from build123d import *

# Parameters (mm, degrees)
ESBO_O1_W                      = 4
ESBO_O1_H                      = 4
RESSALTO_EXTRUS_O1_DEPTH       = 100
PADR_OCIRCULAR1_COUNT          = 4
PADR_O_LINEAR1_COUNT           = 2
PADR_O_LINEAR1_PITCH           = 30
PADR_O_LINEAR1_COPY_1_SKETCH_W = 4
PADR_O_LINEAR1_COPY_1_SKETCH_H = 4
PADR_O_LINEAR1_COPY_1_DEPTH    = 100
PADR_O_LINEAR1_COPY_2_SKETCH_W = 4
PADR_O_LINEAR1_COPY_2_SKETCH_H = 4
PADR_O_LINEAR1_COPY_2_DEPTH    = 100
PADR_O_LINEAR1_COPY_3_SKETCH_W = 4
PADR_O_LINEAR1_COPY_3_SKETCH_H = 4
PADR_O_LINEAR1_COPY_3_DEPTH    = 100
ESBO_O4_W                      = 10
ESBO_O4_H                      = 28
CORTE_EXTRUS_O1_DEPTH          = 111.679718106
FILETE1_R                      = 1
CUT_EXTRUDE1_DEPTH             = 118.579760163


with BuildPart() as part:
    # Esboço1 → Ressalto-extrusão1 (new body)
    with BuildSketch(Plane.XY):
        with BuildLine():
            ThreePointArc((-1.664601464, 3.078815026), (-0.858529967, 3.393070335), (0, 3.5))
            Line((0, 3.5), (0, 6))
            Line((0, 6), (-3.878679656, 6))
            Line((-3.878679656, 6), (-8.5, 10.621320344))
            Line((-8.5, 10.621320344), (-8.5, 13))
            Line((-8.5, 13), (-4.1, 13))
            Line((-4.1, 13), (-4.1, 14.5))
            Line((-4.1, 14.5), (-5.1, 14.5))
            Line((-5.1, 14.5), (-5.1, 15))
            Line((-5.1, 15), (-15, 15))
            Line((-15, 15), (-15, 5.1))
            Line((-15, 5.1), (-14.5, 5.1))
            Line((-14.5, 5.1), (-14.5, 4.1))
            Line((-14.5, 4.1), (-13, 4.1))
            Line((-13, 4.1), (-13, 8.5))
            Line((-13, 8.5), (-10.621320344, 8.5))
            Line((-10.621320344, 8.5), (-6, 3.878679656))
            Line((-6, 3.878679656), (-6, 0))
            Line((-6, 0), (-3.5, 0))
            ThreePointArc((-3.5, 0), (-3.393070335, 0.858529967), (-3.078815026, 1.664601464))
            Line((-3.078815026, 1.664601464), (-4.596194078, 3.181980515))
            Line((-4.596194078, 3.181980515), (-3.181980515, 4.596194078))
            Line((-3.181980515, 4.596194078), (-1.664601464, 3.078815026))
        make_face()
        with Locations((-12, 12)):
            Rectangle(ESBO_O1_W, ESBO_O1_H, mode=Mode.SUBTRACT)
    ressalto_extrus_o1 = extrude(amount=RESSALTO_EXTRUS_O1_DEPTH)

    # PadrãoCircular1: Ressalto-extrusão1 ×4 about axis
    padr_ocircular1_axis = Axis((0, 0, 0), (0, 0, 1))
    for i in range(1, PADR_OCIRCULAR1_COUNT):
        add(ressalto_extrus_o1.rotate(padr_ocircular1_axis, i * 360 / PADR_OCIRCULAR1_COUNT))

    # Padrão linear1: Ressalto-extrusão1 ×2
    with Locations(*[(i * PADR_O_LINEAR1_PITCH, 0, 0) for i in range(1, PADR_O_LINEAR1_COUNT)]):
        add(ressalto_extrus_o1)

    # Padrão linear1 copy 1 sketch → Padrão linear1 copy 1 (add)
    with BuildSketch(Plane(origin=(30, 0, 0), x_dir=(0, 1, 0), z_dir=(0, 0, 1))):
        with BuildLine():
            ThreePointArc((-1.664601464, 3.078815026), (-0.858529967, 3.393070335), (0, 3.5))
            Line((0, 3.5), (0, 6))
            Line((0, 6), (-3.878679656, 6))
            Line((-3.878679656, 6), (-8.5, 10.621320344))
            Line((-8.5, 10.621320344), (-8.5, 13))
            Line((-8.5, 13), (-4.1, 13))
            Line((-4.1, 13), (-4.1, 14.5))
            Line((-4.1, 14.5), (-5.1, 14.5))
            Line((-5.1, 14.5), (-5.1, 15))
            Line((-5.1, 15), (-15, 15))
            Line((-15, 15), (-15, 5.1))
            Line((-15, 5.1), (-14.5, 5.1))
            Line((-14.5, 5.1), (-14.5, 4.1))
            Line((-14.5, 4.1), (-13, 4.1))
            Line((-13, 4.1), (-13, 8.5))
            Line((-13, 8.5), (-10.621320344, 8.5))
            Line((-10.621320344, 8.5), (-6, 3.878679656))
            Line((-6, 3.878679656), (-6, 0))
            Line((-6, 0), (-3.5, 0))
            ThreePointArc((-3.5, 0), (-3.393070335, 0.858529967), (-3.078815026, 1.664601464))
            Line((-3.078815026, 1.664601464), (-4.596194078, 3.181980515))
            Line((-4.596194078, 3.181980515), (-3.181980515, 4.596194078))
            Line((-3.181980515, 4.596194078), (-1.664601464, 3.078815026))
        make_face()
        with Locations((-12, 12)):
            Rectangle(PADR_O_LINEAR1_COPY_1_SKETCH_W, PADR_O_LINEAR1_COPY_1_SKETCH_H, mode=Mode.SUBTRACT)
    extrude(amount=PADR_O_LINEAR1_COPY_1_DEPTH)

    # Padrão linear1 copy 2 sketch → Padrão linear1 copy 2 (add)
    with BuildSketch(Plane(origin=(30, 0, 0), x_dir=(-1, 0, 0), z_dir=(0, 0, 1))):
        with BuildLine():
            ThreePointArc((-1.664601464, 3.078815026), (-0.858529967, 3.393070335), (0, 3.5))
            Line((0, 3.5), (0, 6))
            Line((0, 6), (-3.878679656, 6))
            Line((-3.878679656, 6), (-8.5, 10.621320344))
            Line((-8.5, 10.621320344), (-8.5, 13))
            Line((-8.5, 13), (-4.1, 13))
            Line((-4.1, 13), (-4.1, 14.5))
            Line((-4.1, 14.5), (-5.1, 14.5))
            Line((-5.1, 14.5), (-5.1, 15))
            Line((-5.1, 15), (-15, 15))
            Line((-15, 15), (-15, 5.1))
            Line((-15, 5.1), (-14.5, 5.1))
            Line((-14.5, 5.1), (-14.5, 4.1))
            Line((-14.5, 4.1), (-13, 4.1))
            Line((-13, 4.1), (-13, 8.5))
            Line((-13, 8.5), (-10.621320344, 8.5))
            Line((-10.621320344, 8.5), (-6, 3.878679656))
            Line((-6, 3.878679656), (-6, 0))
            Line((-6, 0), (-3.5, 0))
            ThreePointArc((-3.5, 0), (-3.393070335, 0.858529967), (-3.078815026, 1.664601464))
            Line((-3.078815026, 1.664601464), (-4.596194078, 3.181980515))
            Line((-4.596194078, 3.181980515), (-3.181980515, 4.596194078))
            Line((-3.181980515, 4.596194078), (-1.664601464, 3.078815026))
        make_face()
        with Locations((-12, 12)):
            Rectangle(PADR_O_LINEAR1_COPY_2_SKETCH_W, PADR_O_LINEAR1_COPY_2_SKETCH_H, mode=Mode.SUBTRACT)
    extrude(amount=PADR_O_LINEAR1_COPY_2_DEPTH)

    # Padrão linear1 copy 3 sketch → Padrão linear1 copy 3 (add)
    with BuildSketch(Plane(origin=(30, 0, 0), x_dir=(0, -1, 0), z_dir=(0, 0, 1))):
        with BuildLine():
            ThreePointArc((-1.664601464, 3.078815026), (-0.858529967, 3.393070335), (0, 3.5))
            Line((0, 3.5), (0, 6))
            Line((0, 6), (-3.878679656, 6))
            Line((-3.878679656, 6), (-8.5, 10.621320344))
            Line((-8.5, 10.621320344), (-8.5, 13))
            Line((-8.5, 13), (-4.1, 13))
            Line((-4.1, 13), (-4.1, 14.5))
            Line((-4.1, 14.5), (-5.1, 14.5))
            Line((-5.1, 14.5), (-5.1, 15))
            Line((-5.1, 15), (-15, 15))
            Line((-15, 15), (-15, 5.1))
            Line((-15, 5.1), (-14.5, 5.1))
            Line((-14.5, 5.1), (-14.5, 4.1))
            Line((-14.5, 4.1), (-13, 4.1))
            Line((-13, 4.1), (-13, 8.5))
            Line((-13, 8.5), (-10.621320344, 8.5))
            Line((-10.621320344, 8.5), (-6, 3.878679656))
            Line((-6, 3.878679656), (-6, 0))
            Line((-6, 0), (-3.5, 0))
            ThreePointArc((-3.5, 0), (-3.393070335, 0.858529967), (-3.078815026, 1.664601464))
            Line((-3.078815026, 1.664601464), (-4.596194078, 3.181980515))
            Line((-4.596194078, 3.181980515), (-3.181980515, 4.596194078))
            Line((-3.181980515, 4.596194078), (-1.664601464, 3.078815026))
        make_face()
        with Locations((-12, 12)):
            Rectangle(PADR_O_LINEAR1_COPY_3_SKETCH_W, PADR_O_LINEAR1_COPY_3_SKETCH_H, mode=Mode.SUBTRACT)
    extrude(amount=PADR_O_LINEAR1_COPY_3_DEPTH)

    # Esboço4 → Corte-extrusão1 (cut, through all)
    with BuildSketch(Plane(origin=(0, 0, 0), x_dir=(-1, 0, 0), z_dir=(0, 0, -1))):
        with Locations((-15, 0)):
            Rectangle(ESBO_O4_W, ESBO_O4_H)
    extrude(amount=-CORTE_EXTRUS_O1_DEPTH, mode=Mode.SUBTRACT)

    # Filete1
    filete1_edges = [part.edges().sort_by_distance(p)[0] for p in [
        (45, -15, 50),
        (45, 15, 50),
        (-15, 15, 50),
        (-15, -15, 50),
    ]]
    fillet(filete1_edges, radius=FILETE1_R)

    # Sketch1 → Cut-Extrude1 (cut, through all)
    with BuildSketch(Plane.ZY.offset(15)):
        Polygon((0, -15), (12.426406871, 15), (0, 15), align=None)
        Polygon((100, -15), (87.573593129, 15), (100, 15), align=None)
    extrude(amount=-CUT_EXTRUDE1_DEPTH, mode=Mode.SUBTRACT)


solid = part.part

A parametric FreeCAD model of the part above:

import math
import FreeCAD as App
import Part
import Sketcher
from FreeCAD import Vector
Q = App.Units.Quantity


def edges_at(feature, points):
    """Names of the edges that pass closest to the given points."""
    edges = feature.Shape.Edges
    near = lambda p: min(range(len(edges)), key=lambda i: edges[i].distToShape(Part.Vertex(*p))[0])
    return sorted({f"Edge{near(p) + 1}" for p in points})

doc = App.newDocument("Part")
body = doc.addObject("PartDesign::Body", "Body")

sketch1 = doc.addObject("Sketcher::SketchObject", "Sketch")
body.addObject(sketch1)
sketch1.AttachmentSupport = (doc.XY_Plane, [""])
sketch1.MapMode = "FlatFace"
sketch1.addGeometry(Part.ArcOfCircle(Part.Circle(Vector(0, 0, 0), Vector(0, 0, 1), 3.5), math.radians(90), math.radians(118)), False)
sketch1.addGeometry(Part.LineSegment(Vector(0, 3.5, 0), Vector(0, 6, 0)), False)
sketch1.addGeometry(Part.LineSegment(Vector(0, 6, 0), Vector(-3.9, 6, 0)), False)
sketch1.addGeometry(Part.LineSegment(Vector(-3.9, 6, 0), Vector(-8.5, 10.6, 0)), False)
sketch1.addGeometry(Part.LineSegment(Vector(-8.5, 10.6, 0), Vector(-8.5, 13, 0)), False)
sketch1.addGeometry(Part.LineSegment(Vector(-8.5, 13, 0), Vector(-4.1, 13, 0)), False)
sketch1.addGeometry(Part.LineSegment(Vector(-4.1, 13, 0), Vector(-4.1, 14.5, 0)), False)
sketch1.addGeometry(Part.LineSegment(Vector(-4.1, 14.5, 0), Vector(-5.1, 14.5, 0)), False)
sketch1.addGeometry(Part.LineSegment(Vector(-5.1, 14.5, 0), Vector(-5.1, 15, 0)), False)
sketch1.addGeometry(Part.LineSegment(Vector(-5.1, 15, 0), Vector(-15, 15, 0)), False)
sketch1.addGeometry(Part.LineSegment(Vector(-15, 15, 0), Vector(-15, 5.1, 0)), False)
sketch1.addGeometry(Part.LineSegment(Vector(-15, 5.1, 0), Vector(-14.5, 5.1, 0)), False)
sketch1.addGeometry(Part.LineSegment(Vector(-14.5, 5.1, 0), Vector(-14.5, 4.1, 0)), False)
sketch1.addGeometry(Part.LineSegment(Vector(-14.5, 4.1, 0), Vector(-13, 4.1, 0)), False)
sketch1.addGeometry(Part.LineSegment(Vector(-13, 4.1, 0), Vector(-13, 8.5, 0)), False)
sketch1.addGeometry(Part.LineSegment(Vector(-13, 8.5, 0), Vector(-10.6, 8.5, 0)), False)
sketch1.addGeometry(Part.LineSegment(Vector(-10.6, 8.5, 0), Vector(-6, 3.9, 0)), False)
sketch1.addGeometry(Part.LineSegment(Vector(-6, 3.9, 0), Vector(-6, 0, 0)), False)
sketch1.addGeometry(Part.LineSegment(Vector(-6, 0, 0), Vector(-3.5, 0, 0)), False)
sketch1.addGeometry(Part.ArcOfCircle(Part.Circle(Vector(0, 0, 0), Vector(0, 0, 1), 3.5), math.radians(152), math.radians(180)), False)
sketch1.addGeometry(Part.LineSegment(Vector(-3.1, 1.7, 0), Vector(-4.6, 3.2, 0)), False)
sketch1.addGeometry(Part.LineSegment(Vector(-4.6, 3.2, 0), Vector(-3.2, 4.6, 0)), False)
sketch1.addGeometry(Part.LineSegment(Vector(-3.2, 4.6, 0), Vector(-1.7, 3.1, 0)), False)
sketch1.addGeometry(Part.LineSegment(Vector(-10, 10, 0), Vector(-14, 10, 0)), False)
sketch1.addGeometry(Part.LineSegment(Vector(-14, 10, 0), Vector(-14, 14, 0)), False)
sketch1.addGeometry(Part.LineSegment(Vector(-14, 14, 0), Vector(-10, 14, 0)), False)
sketch1.addGeometry(Part.LineSegment(Vector(-10, 14, 0), Vector(-10, 10, 0)), False)
sketch1.addConstraint(Sketcher.Constraint("Coincident", 0, 1, 1, 1))
sketch1.addConstraint(Sketcher.Constraint("Coincident", 1, 2, 2, 1))
sketch1.addConstraint(Sketcher.Constraint("Coincident", 2, 2, 3, 1))
sketch1.addConstraint(Sketcher.Constraint("Coincident", 3, 2, 4, 1))
sketch1.addConstraint(Sketcher.Constraint("Coincident", 4, 2, 5, 1))
sketch1.addConstraint(Sketcher.Constraint("Coincident", 5, 2, 6, 1))
sketch1.addConstraint(Sketcher.Constraint("Coincident", 6, 2, 7, 1))
sketch1.addConstraint(Sketcher.Constraint("Coincident", 7, 2, 8, 1))
sketch1.addConstraint(Sketcher.Constraint("Coincident", 8, 2, 9, 1))
sketch1.addConstraint(Sketcher.Constraint("Coincident", 9, 2, 10, 1))
sketch1.addConstraint(Sketcher.Constraint("Coincident", 10, 2, 11, 1))
sketch1.addConstraint(Sketcher.Constraint("Coincident", 11, 2, 12, 1))
sketch1.addConstraint(Sketcher.Constraint("Coincident", 12, 2, 13, 1))
sketch1.addConstraint(Sketcher.Constraint("Coincident", 13, 2, 14, 1))
sketch1.addConstraint(Sketcher.Constraint("Coincident", 14, 2, 15, 1))
sketch1.addConstraint(Sketcher.Constraint("Coincident", 15, 2, 16, 1))
sketch1.addConstraint(Sketcher.Constraint("Coincident", 16, 2, 17, 1))
sketch1.addConstraint(Sketcher.Constraint("Coincident", 17, 2, 18, 1))
sketch1.addConstraint(Sketcher.Constraint("Coincident", 18, 2, 19, 2))
sketch1.addConstraint(Sketcher.Constraint("Coincident", 19, 1, 20, 1))
sketch1.addConstraint(Sketcher.Constraint("Coincident", 20, 2, 21, 1))
sketch1.addConstraint(Sketcher.Constraint("Coincident", 21, 2, 22, 1))
sketch1.addConstraint(Sketcher.Constraint("Coincident", 22, 2, 0, 2))
sketch1.addConstraint(Sketcher.Constraint("Coincident", 23, 2, 24, 1))
sketch1.addConstraint(Sketcher.Constraint("Coincident", 24, 2, 25, 1))
sketch1.addConstraint(Sketcher.Constraint("Coincident", 25, 2, 26, 1))
sketch1.addConstraint(Sketcher.Constraint("Coincident", 26, 2, 23, 1))
sketch1.addConstraint(Sketcher.Constraint("Vertical", 1))
sketch1.addConstraint(Sketcher.Constraint("Horizontal", 2))
sketch1.addConstraint(Sketcher.Constraint("Vertical", 4))
sketch1.addConstraint(Sketcher.Constraint("Horizontal", 5))
sketch1.addConstraint(Sketcher.Constraint("Vertical", 6))
sketch1.addConstraint(Sketcher.Constraint("Horizontal", 7))
sketch1.addConstraint(Sketcher.Constraint("Vertical", 8))
sketch1.addConstraint(Sketcher.Constraint("Horizontal", 9))
sketch1.addConstraint(Sketcher.Constraint("Vertical", 10))
sketch1.addConstraint(Sketcher.Constraint("Horizontal", 11))
sketch1.addConstraint(Sketcher.Constraint("Vertical", 12))
sketch1.addConstraint(Sketcher.Constraint("Horizontal", 13))
sketch1.addConstraint(Sketcher.Constraint("Vertical", 14))
sketch1.addConstraint(Sketcher.Constraint("Horizontal", 15))
sketch1.addConstraint(Sketcher.Constraint("Vertical", 17))
sketch1.addConstraint(Sketcher.Constraint("Horizontal", 18))
sketch1.addConstraint(Sketcher.Constraint("Horizontal", 23))
sketch1.addConstraint(Sketcher.Constraint("Vertical", 24))
sketch1.addConstraint(Sketcher.Constraint("Horizontal", 25))
sketch1.addConstraint(Sketcher.Constraint("Vertical", 26))
sketch1.addConstraint(Sketcher.Constraint("Coincident", 0, 3, -1, 1))
sketch1.addConstraint(Sketcher.Constraint("Coincident", 19, 3, -1, 1))
sketch1.addConstraint(Sketcher.Constraint("Equal", 0, 19))
sketch1.addConstraint(Sketcher.Constraint("PointOnObject", 0, 1, -2))
sketch1.addConstraint(Sketcher.Constraint("PointOnObject", 17, 2, -1))
sketch1.addConstraint(Sketcher.Constraint("Parallel", 3, 16))
sketch1.addConstraint(Sketcher.Constraint("Parallel", 16, 20))
sketch1.addConstraint(Sketcher.Constraint("Perpendicular", 20, 21))
sketch1.addConstraint(Sketcher.Constraint("Perpendicular", 21, 22))
sketch1.addConstraint(Sketcher.Constraint("Equal", 18, 1))
sketch1.addConstraint(Sketcher.Constraint("Equal", 15, 4))
sketch1.addConstraint(Sketcher.Constraint("Equal", 13, 6))
sketch1.addConstraint(Sketcher.Constraint("Equal", 11, 8))
sketch1.addConstraint(Sketcher.Constraint("Equal", 9, 10))
sketch1.addConstraint(Sketcher.Constraint("Equal", 7, 12))
sketch1.addConstraint(Sketcher.Constraint("Equal", 5, 14))
sketch1.addConstraint(Sketcher.Constraint("Equal", 2, 17))
sketch1.addConstraint(Sketcher.Constraint("Equal", 25, 24))
sketch1.addConstraint(Sketcher.Constraint("Equal", 20, 22))
sketch1.addConstraint(Sketcher.Constraint("Radius", 0, Q("3.5 mm")))
sketch1.addConstraint(Sketcher.Constraint("DistanceX", 7, 2, 7, 1, Q("1 mm")))
sketch1.addConstraint(Sketcher.Constraint("DistanceX", 23, 2, 23, 1, Q("4 mm")))
sketch1.addConstraint(Sketcher.Constraint("Angle", 3, Q("135 deg")))
sketch1.addConstraint(Sketcher.Constraint("Distance", 21, Q("2 mm")))
sketch1.addConstraint(Sketcher.Constraint("DistanceX", 5, 1, 5, 2, Q("4.4 mm")))
sketch1.addConstraint(Sketcher.Constraint("DistanceX", 9, 2, 9, 1, Q("9.9 mm")))
sketch1.addConstraint(Sketcher.Constraint("DistanceX", 11, 1, 11, 2, Q("0.5 mm")))
sketch1.addConstraint(Sketcher.Constraint("DistanceX", 13, 1, 13, 2, Q("1.5 mm")))
sketch1.addConstraint(Sketcher.Constraint("DistanceX", 18, 1, 18, 2, Q("2.5 mm")))
sketch1.addConstraint(Sketcher.Constraint("DistanceY", -1, 1, 4, 2, Q("13 mm")))
sketch1.addConstraint(Sketcher.Constraint("DistanceX", 23, 2, -1, 1, Q("14 mm")))
sketch1.addConstraint(Sketcher.Constraint("DistanceY", -1, 1, 23, 2, Q("10 mm")))
sketch1.addConstraint(Sketcher.Constraint("Distance", 20, Q("2.145898 mm")))
sketch1.addConstraint(Sketcher.Constraint("DistanceX", 2, 2, 2, 1, Q("3.87868 mm")))
pad1 = doc.addObject("PartDesign::Pad", "Pad")
body.addObject(pad1)
pad1.Profile = sketch1
pad1.Length = 100
doc.recompute()

polarpattern = doc.addObject("PartDesign::PolarPattern", "PolarPattern")
body.addObject(polarpattern)
polarpattern.Originals = [pad1]
polarpattern.Axis = (doc.Z_Axis, [""])
polarpattern.Angle = 360
polarpattern.Occurrences = 4
body.Tip = polarpattern
doc.recompute()

linearpattern = doc.addObject("PartDesign::LinearPattern", "LinearPattern")
body.addObject(linearpattern)
linearpattern.Originals = [pad1]
linearpattern.Direction = (doc.X_Axis, [""])
linearpattern.Mode = "offset"
linearpattern.Offset = 30
linearpattern.Occurrences = 2
body.Tip = linearpattern

sketch2 = doc.addObject("Sketcher::SketchObject", "Sketch001")
body.addObject(sketch2)
sketch2.AttachmentSupport = (doc.XY_Plane, [""])
sketch2.MapMode = "FlatFace"
sketch2.addGeometry(Part.ArcOfCircle(Part.Circle(Vector(30, 0, 0), Vector(0, 0, 1), 3.5), math.radians(180), math.radians(208)), False)
sketch2.addGeometry(Part.LineSegment(Vector(26.5, 0, 0), Vector(24, 0, 0)), False)
sketch2.addGeometry(Part.LineSegment(Vector(24, 0, 0), Vector(24, -3.9, 0)), False)
sketch2.addGeometry(Part.LineSegment(Vector(24, -3.9, 0), Vector(19.4, -8.5, 0)), False)
sketch2.addGeometry(Part.LineSegment(Vector(19.4, -8.5, 0), Vector(17, -8.5, 0)), False)
sketch2.addGeometry(Part.LineSegment(Vector(17, -8.5, 0), Vector(17, -4.1, 0)), False)
sketch2.addGeometry(Part.LineSegment(Vector(17, -4.1, 0), Vector(15.5, -4.1, 0)), False)
sketch2.addGeometry(Part.LineSegment(Vector(15.5, -4.1, 0), Vector(15.5, -5.1, 0)), False)
sketch2.addGeometry(Part.LineSegment(Vector(15.5, -5.1, 0), Vector(15, -5.1, 0)), False)
sketch2.addGeometry(Part.LineSegment(Vector(15, -5.1, 0), Vector(15, -15, 0)), False)
sketch2.addGeometry(Part.LineSegment(Vector(15, -15, 0), Vector(24.9, -15, 0)), False)
sketch2.addGeometry(Part.LineSegment(Vector(24.9, -15, 0), Vector(24.9, -14.5, 0)), False)
sketch2.addGeometry(Part.LineSegment(Vector(24.9, -14.5, 0), Vector(25.9, -14.5, 0)), False)
sketch2.addGeometry(Part.LineSegment(Vector(25.9, -14.5, 0), Vector(25.9, -13, 0)), False)
sketch2.addGeometry(Part.LineSegment(Vector(25.9, -13, 0), Vector(21.5, -13, 0)), False)
sketch2.addGeometry(Part.LineSegment(Vector(21.5, -13, 0), Vector(21.5, -10.6, 0)), False)
sketch2.addGeometry(Part.LineSegment(Vector(21.5, -10.6, 0), Vector(26.1, -6, 0)), False)
sketch2.addGeometry(Part.LineSegment(Vector(26.1, -6, 0), Vector(30, -6, 0)), False)
sketch2.addGeometry(Part.LineSegment(Vector(30, -6, 0), Vector(30, -3.5, 0)), False)
sketch2.addGeometry(Part.ArcOfCircle(Part.Circle(Vector(30, 0, 0), Vector(0, 0, 1), 3.5), math.radians(-118), math.radians(-90)), False)
sketch2.addGeometry(Part.LineSegment(Vector(28.3, -3.1, 0), Vector(26.8, -4.6, 0)), False)
sketch2.addGeometry(Part.LineSegment(Vector(26.8, -4.6, 0), Vector(25.4, -3.2, 0)), False)
sketch2.addGeometry(Part.LineSegment(Vector(25.4, -3.2, 0), Vector(26.9, -1.7, 0)), False)
sketch2.addGeometry(Part.LineSegment(Vector(20, -10, 0), Vector(20, -14, 0)), False)
sketch2.addGeometry(Part.LineSegment(Vector(20, -14, 0), Vector(16, -14, 0)), False)
sketch2.addGeometry(Part.LineSegment(Vector(16, -14, 0), Vector(16, -10, 0)), False)
sketch2.addGeometry(Part.LineSegment(Vector(16, -10, 0), Vector(20, -10, 0)), False)
sketch2.addConstraint(Sketcher.Constraint("Coincident", 0, 1, 1, 1))
sketch2.addConstraint(Sketcher.Constraint("Coincident", 1, 2, 2, 1))
sketch2.addConstraint(Sketcher.Constraint("Coincident", 2, 2, 3, 1))
sketch2.addConstraint(Sketcher.Constraint("Coincident", 3, 2, 4, 1))
sketch2.addConstraint(Sketcher.Constraint("Coincident", 4, 2, 5, 1))
sketch2.addConstraint(Sketcher.Constraint("Coincident", 5, 2, 6, 1))
sketch2.addConstraint(Sketcher.Constraint("Coincident", 6, 2, 7, 1))
sketch2.addConstraint(Sketcher.Constraint("Coincident", 7, 2, 8, 1))
sketch2.addConstraint(Sketcher.Constraint("Coincident", 8, 2, 9, 1))
sketch2.addConstraint(Sketcher.Constraint("Coincident", 9, 2, 10, 1))
sketch2.addConstraint(Sketcher.Constraint("Coincident", 10, 2, 11, 1))
sketch2.addConstraint(Sketcher.Constraint("Coincident", 11, 2, 12, 1))
sketch2.addConstraint(Sketcher.Constraint("Coincident", 12, 2, 13, 1))
sketch2.addConstraint(Sketcher.Constraint("Coincident", 13, 2, 14, 1))
sketch2.addConstraint(Sketcher.Constraint("Coincident", 14, 2, 15, 1))
sketch2.addConstraint(Sketcher.Constraint("Coincident", 15, 2, 16, 1))
sketch2.addConstraint(Sketcher.Constraint("Coincident", 16, 2, 17, 1))
sketch2.addConstraint(Sketcher.Constraint("Coincident", 17, 2, 18, 1))
sketch2.addConstraint(Sketcher.Constraint("Coincident", 18, 2, 19, 2))
sketch2.addConstraint(Sketcher.Constraint("Coincident", 19, 1, 20, 1))
sketch2.addConstraint(Sketcher.Constraint("Coincident", 20, 2, 21, 1))
sketch2.addConstraint(Sketcher.Constraint("Coincident", 21, 2, 22, 1))
sketch2.addConstraint(Sketcher.Constraint("Coincident", 22, 2, 0, 2))
sketch2.addConstraint(Sketcher.Constraint("Coincident", 23, 2, 24, 1))
sketch2.addConstraint(Sketcher.Constraint("Coincident", 24, 2, 25, 1))
sketch2.addConstraint(Sketcher.Constraint("Coincident", 25, 2, 26, 1))
sketch2.addConstraint(Sketcher.Constraint("Coincident", 26, 2, 23, 1))
sketch2.addConstraint(Sketcher.Constraint("Horizontal", 1))
sketch2.addConstraint(Sketcher.Constraint("Vertical", 2))
sketch2.addConstraint(Sketcher.Constraint("Horizontal", 4))
sketch2.addConstraint(Sketcher.Constraint("Vertical", 5))
sketch2.addConstraint(Sketcher.Constraint("Horizontal", 6))
sketch2.addConstraint(Sketcher.Constraint("Vertical", 7))
sketch2.addConstraint(Sketcher.Constraint("Horizontal", 8))
sketch2.addConstraint(Sketcher.Constraint("Vertical", 9))
sketch2.addConstraint(Sketcher.Constraint("Horizontal", 10))
sketch2.addConstraint(Sketcher.Constraint("Vertical", 11))
sketch2.addConstraint(Sketcher.Constraint("Horizontal", 12))
sketch2.addConstraint(Sketcher.Constraint("Vertical", 13))
sketch2.addConstraint(Sketcher.Constraint("Horizontal", 14))
sketch2.addConstraint(Sketcher.Constraint("Vertical", 15))
sketch2.addConstraint(Sketcher.Constraint("Horizontal", 17))
sketch2.addConstraint(Sketcher.Constraint("Vertical", 18))
sketch2.addConstraint(Sketcher.Constraint("Vertical", 23))
sketch2.addConstraint(Sketcher.Constraint("Horizontal", 24))
sketch2.addConstraint(Sketcher.Constraint("Vertical", 25))
sketch2.addConstraint(Sketcher.Constraint("Horizontal", 26))
sketch2.addConstraint(Sketcher.Constraint("Coincident", 19, 3, 0, 3))
sketch2.addConstraint(Sketcher.Constraint("Equal", 0, 19))
sketch2.addConstraint(Sketcher.Constraint("PointOnObject", 0, 3, -1))
sketch2.addConstraint(Sketcher.Constraint("PointOnObject", 0, 1, -1))
sketch2.addConstraint(Sketcher.Constraint("Parallel", 3, 16))
sketch2.addConstraint(Sketcher.Constraint("Parallel", 16, 20))
sketch2.addConstraint(Sketcher.Constraint("Perpendicular", 20, 21))
sketch2.addConstraint(Sketcher.Constraint("Perpendicular", 21, 22))
sketch2.addConstraint(Sketcher.Constraint("Vertical", 19, 3, 17, 2))
sketch2.addConstraint(Sketcher.Constraint("Equal", 17, 2))
sketch2.addConstraint(Sketcher.Constraint("Equal", 14, 5))
sketch2.addConstraint(Sketcher.Constraint("Equal", 12, 7))
sketch2.addConstraint(Sketcher.Constraint("Equal", 10, 9))
sketch2.addConstraint(Sketcher.Constraint("Equal", 8, 11))
sketch2.addConstraint(Sketcher.Constraint("Equal", 6, 13))
sketch2.addConstraint(Sketcher.Constraint("Equal", 4, 15))
sketch2.addConstraint(Sketcher.Constraint("Equal", 1, 18))
sketch2.addConstraint(Sketcher.Constraint("Equal", 26, 23))
sketch2.addConstraint(Sketcher.Constraint("Equal", 20, 22))
sketch2.addConstraint(Sketcher.Constraint("Radius", 0, Q("3.5 mm")))
sketch2.addConstraint(Sketcher.Constraint("DistanceX", 12, 1, 12, 2, Q("1 mm")))
sketch2.addConstraint(Sketcher.Constraint("DistanceX", 24, 2, 24, 1, Q("4 mm")))
sketch2.addConstraint(Sketcher.Constraint("Angle", 3, Q("-135 deg")))
sketch2.addConstraint(Sketcher.Constraint("Distance", 21, Q("2 mm")))
sketch2.addConstraint(Sketcher.Constraint("DistanceX", 1, 2, 1, 1, Q("2.5 mm")))
sketch2.addConstraint(Sketcher.Constraint("DistanceX", 6, 2, 6, 1, Q("1.5 mm")))
sketch2.addConstraint(Sketcher.Constraint("DistanceX", 8, 2, 8, 1, Q("0.5 mm")))
sketch2.addConstraint(Sketcher.Constraint("DistanceX", 10, 1, 10, 2, Q("9.9 mm")))
sketch2.addConstraint(Sketcher.Constraint("DistanceX", 14, 2, 14, 1, Q("4.4 mm")))
sketch2.addConstraint(Sketcher.Constraint("DistanceX", -1, 1, 0, 3, Q("30 mm")))
sketch2.addConstraint(Sketcher.Constraint("DistanceX", -1, 1, 4, 2, Q("17 mm")))
sketch2.addConstraint(Sketcher.Constraint("DistanceX", -1, 1, 23, 2, Q("20 mm")))
sketch2.addConstraint(Sketcher.Constraint("DistanceY", 23, 2, -1, 1, Q("14 mm")))
sketch2.addConstraint(Sketcher.Constraint("Distance", 20, Q("2.145898 mm")))
sketch2.addConstraint(Sketcher.Constraint("DistanceX", 4, 2, 4, 1, Q("2.37868 mm")))
pad2 = doc.addObject("PartDesign::Pad", "Pad001")
body.addObject(pad2)
pad2.Profile = sketch2
pad2.Length = 100

sketch3 = doc.addObject("Sketcher::SketchObject", "Sketch002")
body.addObject(sketch3)
sketch3.AttachmentSupport = (doc.XY_Plane, [""])
sketch3.MapMode = "FlatFace"
sketch3.addGeometry(Part.ArcOfCircle(Part.Circle(Vector(30, 0, 0), Vector(0, 0, 1), 3.5), math.radians(-90), math.radians(-62)), False)
sketch3.addGeometry(Part.LineSegment(Vector(30, -3.5, 0), Vector(30, -6, 0)), False)
sketch3.addGeometry(Part.LineSegment(Vector(30, -6, 0), Vector(33.9, -6, 0)), False)
sketch3.addGeometry(Part.LineSegment(Vector(33.9, -6, 0), Vector(38.5, -10.6, 0)), False)
sketch3.addGeometry(Part.LineSegment(Vector(38.5, -10.6, 0), Vector(38.5, -13, 0)), False)
sketch3.addGeometry(Part.LineSegment(Vector(38.5, -13, 0), Vector(34.1, -13, 0)), False)
sketch3.addGeometry(Part.LineSegment(Vector(34.1, -13, 0), Vector(34.1, -14.5, 0)), False)
sketch3.addGeometry(Part.LineSegment(Vector(34.1, -14.5, 0), Vector(35.1, -14.5, 0)), False)
sketch3.addGeometry(Part.LineSegment(Vector(35.1, -14.5, 0), Vector(35.1, -15, 0)), False)
sketch3.addGeometry(Part.LineSegment(Vector(35.1, -15, 0), Vector(45, -15, 0)), False)
sketch3.addGeometry(Part.LineSegment(Vector(45, -15, 0), Vector(45, -5.1, 0)), False)
sketch3.addGeometry(Part.LineSegment(Vector(45, -5.1, 0), Vector(44.5, -5.1, 0)), False)
sketch3.addGeometry(Part.LineSegment(Vector(44.5, -5.1, 0), Vector(44.5, -4.1, 0)), False)
sketch3.addGeometry(Part.LineSegment(Vector(44.5, -4.1, 0), Vector(43, -4.1, 0)), False)
sketch3.addGeometry(Part.LineSegment(Vector(43, -4.1, 0), Vector(43, -8.5, 0)), False)
sketch3.addGeometry(Part.LineSegment(Vector(43, -8.5, 0), Vector(40.6, -8.5, 0)), False)
sketch3.addGeometry(Part.LineSegment(Vector(40.6, -8.5, 0), Vector(36, -3.9, 0)), False)
sketch3.addGeometry(Part.LineSegment(Vector(36, -3.9, 0), Vector(36, 0, 0)), False)
sketch3.addGeometry(Part.LineSegment(Vector(36, 0, 0), Vector(33.5, 0, 0)), False)
sketch3.addGeometry(Part.ArcOfCircle(Part.Circle(Vector(30, 0, 0), Vector(0, 0, 1), 3.5), math.radians(-28), math.radians(0)), False)
sketch3.addGeometry(Part.LineSegment(Vector(33.1, -1.7, 0), Vector(34.6, -3.2, 0)), False)
sketch3.addGeometry(Part.LineSegment(Vector(34.6, -3.2, 0), Vector(33.2, -4.6, 0)), False)
sketch3.addGeometry(Part.LineSegment(Vector(33.2, -4.6, 0), Vector(31.7, -3.1, 0)), False)
sketch3.addGeometry(Part.LineSegment(Vector(40, -10, 0), Vector(44, -10, 0)), False)
sketch3.addGeometry(Part.LineSegment(Vector(44, -10, 0), Vector(44, -14, 0)), False)
sketch3.addGeometry(Part.LineSegment(Vector(44, -14, 0), Vector(40, -14, 0)), False)
sketch3.addGeometry(Part.LineSegment(Vector(40, -14, 0), Vector(40, -10, 0)), False)
sketch3.addConstraint(Sketcher.Constraint("Coincident", 0, 1, 1, 1))
sketch3.addConstraint(Sketcher.Constraint("Coincident", 1, 2, 2, 1))
sketch3.addConstraint(Sketcher.Constraint("Coincident", 2, 2, 3, 1))
sketch3.addConstraint(Sketcher.Constraint("Coincident", 3, 2, 4, 1))
sketch3.addConstraint(Sketcher.Constraint("Coincident", 4, 2, 5, 1))
sketch3.addConstraint(Sketcher.Constraint("Coincident", 5, 2, 6, 1))
sketch3.addConstraint(Sketcher.Constraint("Coincident", 6, 2, 7, 1))
sketch3.addConstraint(Sketcher.Constraint("Coincident", 7, 2, 8, 1))
sketch3.addConstraint(Sketcher.Constraint("Coincident", 8, 2, 9, 1))
sketch3.addConstraint(Sketcher.Constraint("Coincident", 9, 2, 10, 1))
sketch3.addConstraint(Sketcher.Constraint("Coincident", 10, 2, 11, 1))
sketch3.addConstraint(Sketcher.Constraint("Coincident", 11, 2, 12, 1))
sketch3.addConstraint(Sketcher.Constraint("Coincident", 12, 2, 13, 1))
sketch3.addConstraint(Sketcher.Constraint("Coincident", 13, 2, 14, 1))
sketch3.addConstraint(Sketcher.Constraint("Coincident", 14, 2, 15, 1))
sketch3.addConstraint(Sketcher.Constraint("Coincident", 15, 2, 16, 1))
sketch3.addConstraint(Sketcher.Constraint("Coincident", 16, 2, 17, 1))
sketch3.addConstraint(Sketcher.Constraint("Coincident", 17, 2, 18, 1))
sketch3.addConstraint(Sketcher.Constraint("Coincident", 18, 2, 19, 2))
sketch3.addConstraint(Sketcher.Constraint("Coincident", 19, 1, 20, 1))
sketch3.addConstraint(Sketcher.Constraint("Coincident", 20, 2, 21, 1))
sketch3.addConstraint(Sketcher.Constraint("Coincident", 21, 2, 22, 1))
sketch3.addConstraint(Sketcher.Constraint("Coincident", 22, 2, 0, 2))
sketch3.addConstraint(Sketcher.Constraint("Coincident", 23, 2, 24, 1))
sketch3.addConstraint(Sketcher.Constraint("Coincident", 24, 2, 25, 1))
sketch3.addConstraint(Sketcher.Constraint("Coincident", 25, 2, 26, 1))
sketch3.addConstraint(Sketcher.Constraint("Coincident", 26, 2, 23, 1))
sketch3.addConstraint(Sketcher.Constraint("Vertical", 1))
sketch3.addConstraint(Sketcher.Constraint("Horizontal", 2))
sketch3.addConstraint(Sketcher.Constraint("Vertical", 4))
sketch3.addConstraint(Sketcher.Constraint("Horizontal", 5))
sketch3.addConstraint(Sketcher.Constraint("Vertical", 6))
sketch3.addConstraint(Sketcher.Constraint("Horizontal", 7))
sketch3.addConstraint(Sketcher.Constraint("Vertical", 8))
sketch3.addConstraint(Sketcher.Constraint("Horizontal", 9))
sketch3.addConstraint(Sketcher.Constraint("Vertical", 10))
sketch3.addConstraint(Sketcher.Constraint("Horizontal", 11))
sketch3.addConstraint(Sketcher.Constraint("Vertical", 12))
sketch3.addConstraint(Sketcher.Constraint("Horizontal", 13))
sketch3.addConstraint(Sketcher.Constraint("Vertical", 14))
sketch3.addConstraint(Sketcher.Constraint("Horizontal", 15))
sketch3.addConstraint(Sketcher.Constraint("Vertical", 17))
sketch3.addConstraint(Sketcher.Constraint("Horizontal", 18))
sketch3.addConstraint(Sketcher.Constraint("Horizontal", 23))
sketch3.addConstraint(Sketcher.Constraint("Vertical", 24))
sketch3.addConstraint(Sketcher.Constraint("Horizontal", 25))
sketch3.addConstraint(Sketcher.Constraint("Vertical", 26))
sketch3.addConstraint(Sketcher.Constraint("Coincident", 19, 3, 0, 3))
sketch3.addConstraint(Sketcher.Constraint("Equal", 0, 19))
sketch3.addConstraint(Sketcher.Constraint("PointOnObject", 0, 3, -1))
sketch3.addConstraint(Sketcher.Constraint("PointOnObject", 17, 2, -1))
sketch3.addConstraint(Sketcher.Constraint("Parallel", 3, 16))
sketch3.addConstraint(Sketcher.Constraint("Parallel", 16, 20))
sketch3.addConstraint(Sketcher.Constraint("Perpendicular", 20, 21))
sketch3.addConstraint(Sketcher.Constraint("Perpendicular", 21, 22))
sketch3.addConstraint(Sketcher.Constraint("Vertical", 19, 3, 0, 1))
sketch3.addConstraint(Sketcher.Constraint("Equal", 18, 1))
sketch3.addConstraint(Sketcher.Constraint("Equal", 15, 4))
sketch3.addConstraint(Sketcher.Constraint("Equal", 13, 6))
sketch3.addConstraint(Sketcher.Constraint("Equal", 11, 8))
sketch3.addConstraint(Sketcher.Constraint("Equal", 9, 10))
sketch3.addConstraint(Sketcher.Constraint("Equal", 7, 12))
sketch3.addConstraint(Sketcher.Constraint("Equal", 5, 14))
sketch3.addConstraint(Sketcher.Constraint("Equal", 2, 17))
sketch3.addConstraint(Sketcher.Constraint("Equal", 25, 24))
sketch3.addConstraint(Sketcher.Constraint("Equal", 20, 22))
sketch3.addConstraint(Sketcher.Constraint("Radius", 0, Q("3.5 mm")))
sketch3.addConstraint(Sketcher.Constraint("DistanceX", 7, 1, 7, 2, Q("1 mm")))
sketch3.addConstraint(Sketcher.Constraint("DistanceX", 23, 1, 23, 2, Q("4 mm")))
sketch3.addConstraint(Sketcher.Constraint("Angle", 3, Q("-45 deg")))
sketch3.addConstraint(Sketcher.Constraint("Distance", 21, Q("2 mm")))
sketch3.addConstraint(Sketcher.Constraint("DistanceX", 5, 2, 5, 1, Q("4.4 mm")))
sketch3.addConstraint(Sketcher.Constraint("DistanceX", 9, 1, 9, 2, Q("9.9 mm")))
sketch3.addConstraint(Sketcher.Constraint("DistanceX", 11, 2, 11, 1, Q("0.5 mm")))
sketch3.addConstraint(Sketcher.Constraint("DistanceX", 13, 2, 13, 1, Q("1.5 mm")))
sketch3.addConstraint(Sketcher.Constraint("DistanceX", 18, 2, 18, 1, Q("2.5 mm")))
sketch3.addConstraint(Sketcher.Constraint("DistanceX", -1, 1, 0, 3, Q("30 mm")))
sketch3.addConstraint(Sketcher.Constraint("DistanceY", 4, 2, -1, 1, Q("13 mm")))
sketch3.addConstraint(Sketcher.Constraint("DistanceX", -1, 1, 23, 2, Q("44 mm")))
sketch3.addConstraint(Sketcher.Constraint("DistanceY", 23, 2, -1, 1, Q("10 mm")))
sketch3.addConstraint(Sketcher.Constraint("Distance", 20, Q("2.145898 mm")))
sketch3.addConstraint(Sketcher.Constraint("DistanceX", 2, 1, 2, 2, Q("3.87868 mm")))
pad3 = doc.addObject("PartDesign::Pad", "Pad002")
body.addObject(pad3)
pad3.Profile = sketch3
pad3.Length = 100

sketch4 = doc.addObject("Sketcher::SketchObject", "Sketch003")
body.addObject(sketch4)
sketch4.AttachmentSupport = (doc.XY_Plane, [""])
sketch4.MapMode = "FlatFace"
sketch4.addGeometry(Part.ArcOfCircle(Part.Circle(Vector(30, 0, 0), Vector(0, 0, 1), 3.5), math.radians(0), math.radians(28)), False)
sketch4.addGeometry(Part.LineSegment(Vector(33.5, 0, 0), Vector(36, 0, 0)), False)
sketch4.addGeometry(Part.LineSegment(Vector(36, 0, 0), Vector(36, 3.9, 0)), False)
sketch4.addGeometry(Part.LineSegment(Vector(36, 3.9, 0), Vector(40.6, 8.5, 0)), False)
sketch4.addGeometry(Part.LineSegment(Vector(40.6, 8.5, 0), Vector(43, 8.5, 0)), False)
sketch4.addGeometry(Part.LineSegment(Vector(43, 8.5, 0), Vector(43, 4.1, 0)), False)
sketch4.addGeometry(Part.LineSegment(Vector(43, 4.1, 0), Vector(44.5, 4.1, 0)), False)
sketch4.addGeometry(Part.LineSegment(Vector(44.5, 4.1, 0), Vector(44.5, 5.1, 0)), False)
sketch4.addGeometry(Part.LineSegment(Vector(44.5, 5.1, 0), Vector(45, 5.1, 0)), False)
sketch4.addGeometry(Part.LineSegment(Vector(45, 5.1, 0), Vector(45, 15, 0)), False)
sketch4.addGeometry(Part.LineSegment(Vector(45, 15, 0), Vector(35.1, 15, 0)), False)
sketch4.addGeometry(Part.LineSegment(Vector(35.1, 15, 0), Vector(35.1, 14.5, 0)), False)
sketch4.addGeometry(Part.LineSegment(Vector(35.1, 14.5, 0), Vector(34.1, 14.5, 0)), False)
sketch4.addGeometry(Part.LineSegment(Vector(34.1, 14.5, 0), Vector(34.1, 13, 0)), False)
sketch4.addGeometry(Part.LineSegment(Vector(34.1, 13, 0), Vector(38.5, 13, 0)), False)
sketch4.addGeometry(Part.LineSegment(Vector(38.5, 13, 0), Vector(38.5, 10.6, 0)), False)
sketch4.addGeometry(Part.LineSegment(Vector(38.5, 10.6, 0), Vector(33.9, 6, 0)), False)
sketch4.addGeometry(Part.LineSegment(Vector(33.9, 6, 0), Vector(30, 6, 0)), False)
sketch4.addGeometry(Part.LineSegment(Vector(30, 6, 0), Vector(30, 3.5, 0)), False)
sketch4.addGeometry(Part.ArcOfCircle(Part.Circle(Vector(30, 0, 0), Vector(0, 0, 1), 3.5), math.radians(62), math.radians(90)), False)
sketch4.addGeometry(Part.LineSegment(Vector(31.7, 3.1, 0), Vector(33.2, 4.6, 0)), False)
sketch4.addGeometry(Part.LineSegment(Vector(33.2, 4.6, 0), Vector(34.6, 3.2, 0)), False)
sketch4.addGeometry(Part.LineSegment(Vector(34.6, 3.2, 0), Vector(33.1, 1.7, 0)), False)
sketch4.addGeometry(Part.LineSegment(Vector(40, 10, 0), Vector(40, 14, 0)), False)
sketch4.addGeometry(Part.LineSegment(Vector(40, 14, 0), Vector(44, 14, 0)), False)
sketch4.addGeometry(Part.LineSegment(Vector(44, 14, 0), Vector(44, 10, 0)), False)
sketch4.addGeometry(Part.LineSegment(Vector(44, 10, 0), Vector(40, 10, 0)), False)
sketch4.addConstraint(Sketcher.Constraint("Coincident", 0, 1, 1, 1))
sketch4.addConstraint(Sketcher.Constraint("Coincident", 1, 2, 2, 1))
sketch4.addConstraint(Sketcher.Constraint("Coincident", 2, 2, 3, 1))
sketch4.addConstraint(Sketcher.Constraint("Coincident", 3, 2, 4, 1))
sketch4.addConstraint(Sketcher.Constraint("Coincident", 4, 2, 5, 1))
sketch4.addConstraint(Sketcher.Constraint("Coincident", 5, 2, 6, 1))
sketch4.addConstraint(Sketcher.Constraint("Coincident", 6, 2, 7, 1))
sketch4.addConstraint(Sketcher.Constraint("Coincident", 7, 2, 8, 1))
sketch4.addConstraint(Sketcher.Constraint("Coincident", 8, 2, 9, 1))
sketch4.addConstraint(Sketcher.Constraint("Coincident", 9, 2, 10, 1))
sketch4.addConstraint(Sketcher.Constraint("Coincident", 10, 2, 11, 1))
sketch4.addConstraint(Sketcher.Constraint("Coincident", 11, 2, 12, 1))
sketch4.addConstraint(Sketcher.Constraint("Coincident", 12, 2, 13, 1))
sketch4.addConstraint(Sketcher.Constraint("Coincident", 13, 2, 14, 1))
sketch4.addConstraint(Sketcher.Constraint("Coincident", 14, 2, 15, 1))
sketch4.addConstraint(Sketcher.Constraint("Coincident", 15, 2, 16, 1))
sketch4.addConstraint(Sketcher.Constraint("Coincident", 16, 2, 17, 1))
sketch4.addConstraint(Sketcher.Constraint("Coincident", 17, 2, 18, 1))
sketch4.addConstraint(Sketcher.Constraint("Coincident", 18, 2, 19, 2))
sketch4.addConstraint(Sketcher.Constraint("Coincident", 19, 1, 20, 1))
sketch4.addConstraint(Sketcher.Constraint("Coincident", 20, 2, 21, 1))
sketch4.addConstraint(Sketcher.Constraint("Coincident", 21, 2, 22, 1))
sketch4.addConstraint(Sketcher.Constraint("Coincident", 22, 2, 0, 2))
sketch4.addConstraint(Sketcher.Constraint("Coincident", 23, 2, 24, 1))
sketch4.addConstraint(Sketcher.Constraint("Coincident", 24, 2, 25, 1))
sketch4.addConstraint(Sketcher.Constraint("Coincident", 25, 2, 26, 1))
sketch4.addConstraint(Sketcher.Constraint("Coincident", 26, 2, 23, 1))
sketch4.addConstraint(Sketcher.Constraint("Horizontal", 1))
sketch4.addConstraint(Sketcher.Constraint("Vertical", 2))
sketch4.addConstraint(Sketcher.Constraint("Horizontal", 4))
sketch4.addConstraint(Sketcher.Constraint("Vertical", 5))
sketch4.addConstraint(Sketcher.Constraint("Horizontal", 6))
sketch4.addConstraint(Sketcher.Constraint("Vertical", 7))
sketch4.addConstraint(Sketcher.Constraint("Horizontal", 8))
sketch4.addConstraint(Sketcher.Constraint("Vertical", 9))
sketch4.addConstraint(Sketcher.Constraint("Horizontal", 10))
sketch4.addConstraint(Sketcher.Constraint("Vertical", 11))
sketch4.addConstraint(Sketcher.Constraint("Horizontal", 12))
sketch4.addConstraint(Sketcher.Constraint("Vertical", 13))
sketch4.addConstraint(Sketcher.Constraint("Horizontal", 14))
sketch4.addConstraint(Sketcher.Constraint("Vertical", 15))
sketch4.addConstraint(Sketcher.Constraint("Horizontal", 17))
sketch4.addConstraint(Sketcher.Constraint("Vertical", 18))
sketch4.addConstraint(Sketcher.Constraint("Vertical", 23))
sketch4.addConstraint(Sketcher.Constraint("Horizontal", 24))
sketch4.addConstraint(Sketcher.Constraint("Vertical", 25))
sketch4.addConstraint(Sketcher.Constraint("Horizontal", 26))
sketch4.addConstraint(Sketcher.Constraint("Coincident", 19, 3, 0, 3))
sketch4.addConstraint(Sketcher.Constraint("Equal", 0, 19))
sketch4.addConstraint(Sketcher.Constraint("PointOnObject", 0, 3, -1))
sketch4.addConstraint(Sketcher.Constraint("PointOnObject", 0, 1, -1))
sketch4.addConstraint(Sketcher.Constraint("Parallel", 3, 16))
sketch4.addConstraint(Sketcher.Constraint("Parallel", 16, 20))
sketch4.addConstraint(Sketcher.Constraint("Perpendicular", 20, 21))
sketch4.addConstraint(Sketcher.Constraint("Perpendicular", 21, 22))
sketch4.addConstraint(Sketcher.Constraint("Vertical", 19, 3, 17, 2))
sketch4.addConstraint(Sketcher.Constraint("Equal", 17, 2))
sketch4.addConstraint(Sketcher.Constraint("Equal", 14, 5))
sketch4.addConstraint(Sketcher.Constraint("Equal", 12, 7))
sketch4.addConstraint(Sketcher.Constraint("Equal", 10, 9))
sketch4.addConstraint(Sketcher.Constraint("Equal", 8, 11))
sketch4.addConstraint(Sketcher.Constraint("Equal", 6, 13))
sketch4.addConstraint(Sketcher.Constraint("Equal", 4, 15))
sketch4.addConstraint(Sketcher.Constraint("Equal", 1, 18))
sketch4.addConstraint(Sketcher.Constraint("Equal", 26, 23))
sketch4.addConstraint(Sketcher.Constraint("Equal", 20, 22))
sketch4.addConstraint(Sketcher.Constraint("Radius", 0, Q("3.5 mm")))
sketch4.addConstraint(Sketcher.Constraint("DistanceX", 12, 2, 12, 1, Q("1 mm")))
sketch4.addConstraint(Sketcher.Constraint("DistanceX", 24, 1, 24, 2, Q("4 mm")))
sketch4.addConstraint(Sketcher.Constraint("Angle", 3, Q("45 deg")))
sketch4.addConstraint(Sketcher.Constraint("Distance", 21, Q("2 mm")))
sketch4.addConstraint(Sketcher.Constraint("DistanceX", 1, 1, 1, 2, Q("2.5 mm")))
sketch4.addConstraint(Sketcher.Constraint("DistanceX", 6, 1, 6, 2, Q("1.5 mm")))
sketch4.addConstraint(Sketcher.Constraint("DistanceX", 8, 1, 8, 2, Q("0.5 mm")))
sketch4.addConstraint(Sketcher.Constraint("DistanceX", 10, 2, 10, 1, Q("9.9 mm")))
sketch4.addConstraint(Sketcher.Constraint("DistanceX", 14, 1, 14, 2, Q("4.4 mm")))
sketch4.addConstraint(Sketcher.Constraint("DistanceX", -1, 1, 0, 3, Q("30 mm")))
sketch4.addConstraint(Sketcher.Constraint("DistanceX", -1, 1, 4, 2, Q("43 mm")))
sketch4.addConstraint(Sketcher.Constraint("DistanceX", -1, 1, 23, 2, Q("40 mm")))
sketch4.addConstraint(Sketcher.Constraint("DistanceY", -1, 1, 23, 2, Q("14 mm")))
sketch4.addConstraint(Sketcher.Constraint("Distance", 20, Q("2.145898 mm")))
sketch4.addConstraint(Sketcher.Constraint("DistanceX", 4, 1, 4, 2, Q("2.37868 mm")))
pad4 = doc.addObject("PartDesign::Pad", "Pad003")
body.addObject(pad4)
pad4.Profile = sketch4
pad4.Length = 100

sketch5 = doc.addObject("Sketcher::SketchObject", "Sketch004")
body.addObject(sketch5)
sketch5.AttachmentSupport = (doc.XY_Plane, [""])
sketch5.MapMode = "FlatFace"
sketch5.addGeometry(Part.LineSegment(Vector(20, 14, 0), Vector(20, -14, 0)), False)
sketch5.addGeometry(Part.LineSegment(Vector(20, -14, 0), Vector(10, -14, 0)), False)
sketch5.addGeometry(Part.LineSegment(Vector(10, -14, 0), Vector(10, 14, 0)), False)
sketch5.addGeometry(Part.LineSegment(Vector(10, 14, 0), Vector(20, 14, 0)), False)
sketch5.addConstraint(Sketcher.Constraint("Coincident", 0, 2, 1, 1))
sketch5.addConstraint(Sketcher.Constraint("Coincident", 1, 2, 2, 1))
sketch5.addConstraint(Sketcher.Constraint("Coincident", 2, 2, 3, 1))
sketch5.addConstraint(Sketcher.Constraint("Coincident", 3, 2, 0, 1))
sketch5.addConstraint(Sketcher.Constraint("Vertical", 0))
sketch5.addConstraint(Sketcher.Constraint("Horizontal", 1))
sketch5.addConstraint(Sketcher.Constraint("Vertical", 2))
sketch5.addConstraint(Sketcher.Constraint("Horizontal", 3))
sketch5.addConstraint(Sketcher.Constraint("DistanceX", 1, 2, 1, 1, Q("10 mm")))
sketch5.addConstraint(Sketcher.Constraint("DistanceY", 0, 2, 0, 1, Q("28 mm")))
sketch5.addConstraint(Sketcher.Constraint("DistanceX", -1, 1, 0, 2, Q("20 mm")))
sketch5.addConstraint(Sketcher.Constraint("DistanceY", 0, 2, -1, 1, Q("14 mm")))
pocket1 = doc.addObject("PartDesign::Pocket", "Pocket")
body.addObject(pocket1)
pocket1.Profile = sketch5
pocket1.Type = "ThroughAll"
pocket1.Reversed = True
doc.recompute()

fillet = doc.addObject("PartDesign::Fillet", "Fillet")
body.addObject(fillet)
fillet.Base = (pocket1, edges_at(pocket1, [
    (45, -15, 50),
    (45, 15, 50),
    (-15, 15, 50),
    (-15, -15, 50),
]))
fillet.Radius = 1

sketch6 = doc.addObject("Sketcher::SketchObject", "Sketch005")
body.addObject(sketch6)
sketch6.AttachmentSupport = (doc.YZ_Plane, [""])
sketch6.MapMode = "FlatFace"
sketch6.AttachmentOffset = App.Placement(Vector(0, 0, -15), App.Rotation())
sketch6.addGeometry(Part.LineSegment(Vector(-15, 0, 0), Vector(15, 12, 0)), False)
sketch6.addGeometry(Part.LineSegment(Vector(15, 12, 0), Vector(15, 0, 0)), False)
sketch6.addGeometry(Part.LineSegment(Vector(15, 0, 0), Vector(-15, 0, 0)), False)
sketch6.addGeometry(Part.LineSegment(Vector(15, 88, 0), Vector(-15, 100, 0)), False)
sketch6.addGeometry(Part.LineSegment(Vector(-15, 100, 0), Vector(15, 100, 0)), False)
sketch6.addGeometry(Part.LineSegment(Vector(15, 100, 0), Vector(15, 88, 0)), False)
sketch6.addConstraint(Sketcher.Constraint("Coincident", 0, 2, 1, 1))
sketch6.addConstraint(Sketcher.Constraint("Coincident", 1, 2, 2, 1))
sketch6.addConstraint(Sketcher.Constraint("Coincident", 2, 2, 0, 1))
sketch6.addConstraint(Sketcher.Constraint("Coincident", 3, 2, 4, 1))
sketch6.addConstraint(Sketcher.Constraint("Coincident", 4, 2, 5, 1))
sketch6.addConstraint(Sketcher.Constraint("Coincident", 5, 2, 3, 1))
sketch6.addConstraint(Sketcher.Constraint("Vertical", 1))
sketch6.addConstraint(Sketcher.Constraint("Horizontal", 2))
sketch6.addConstraint(Sketcher.Constraint("Horizontal", 4))
sketch6.addConstraint(Sketcher.Constraint("Vertical", 5))
sketch6.addConstraint(Sketcher.Constraint("Symmetric", 1, 2, 2, 2, -1, 1))
sketch6.addConstraint(Sketcher.Constraint("Vertical", 2, 2, 3, 2))
sketch6.addConstraint(Sketcher.Constraint("Vertical", 1, 2, 4, 2))
sketch6.addConstraint(Sketcher.Constraint("Equal", 1, 5))
sketch6.addConstraint(Sketcher.Constraint("DistanceX", 2, 2, 2, 1, Q("30 mm")))
sketch6.addConstraint(Sketcher.Constraint("DistanceY", -1, 1, 3, 2, Q("100 mm")))
sketch6.addConstraint(Sketcher.Constraint("Angle", 0, Q("22.5 deg")))
pocket2 = doc.addObject("PartDesign::Pocket", "Pocket001")
body.addObject(pocket2)
pocket2.Profile = sketch6
pocket2.Type = "ThroughAll"
pocket2.Reversed = True

doc.recompute()
